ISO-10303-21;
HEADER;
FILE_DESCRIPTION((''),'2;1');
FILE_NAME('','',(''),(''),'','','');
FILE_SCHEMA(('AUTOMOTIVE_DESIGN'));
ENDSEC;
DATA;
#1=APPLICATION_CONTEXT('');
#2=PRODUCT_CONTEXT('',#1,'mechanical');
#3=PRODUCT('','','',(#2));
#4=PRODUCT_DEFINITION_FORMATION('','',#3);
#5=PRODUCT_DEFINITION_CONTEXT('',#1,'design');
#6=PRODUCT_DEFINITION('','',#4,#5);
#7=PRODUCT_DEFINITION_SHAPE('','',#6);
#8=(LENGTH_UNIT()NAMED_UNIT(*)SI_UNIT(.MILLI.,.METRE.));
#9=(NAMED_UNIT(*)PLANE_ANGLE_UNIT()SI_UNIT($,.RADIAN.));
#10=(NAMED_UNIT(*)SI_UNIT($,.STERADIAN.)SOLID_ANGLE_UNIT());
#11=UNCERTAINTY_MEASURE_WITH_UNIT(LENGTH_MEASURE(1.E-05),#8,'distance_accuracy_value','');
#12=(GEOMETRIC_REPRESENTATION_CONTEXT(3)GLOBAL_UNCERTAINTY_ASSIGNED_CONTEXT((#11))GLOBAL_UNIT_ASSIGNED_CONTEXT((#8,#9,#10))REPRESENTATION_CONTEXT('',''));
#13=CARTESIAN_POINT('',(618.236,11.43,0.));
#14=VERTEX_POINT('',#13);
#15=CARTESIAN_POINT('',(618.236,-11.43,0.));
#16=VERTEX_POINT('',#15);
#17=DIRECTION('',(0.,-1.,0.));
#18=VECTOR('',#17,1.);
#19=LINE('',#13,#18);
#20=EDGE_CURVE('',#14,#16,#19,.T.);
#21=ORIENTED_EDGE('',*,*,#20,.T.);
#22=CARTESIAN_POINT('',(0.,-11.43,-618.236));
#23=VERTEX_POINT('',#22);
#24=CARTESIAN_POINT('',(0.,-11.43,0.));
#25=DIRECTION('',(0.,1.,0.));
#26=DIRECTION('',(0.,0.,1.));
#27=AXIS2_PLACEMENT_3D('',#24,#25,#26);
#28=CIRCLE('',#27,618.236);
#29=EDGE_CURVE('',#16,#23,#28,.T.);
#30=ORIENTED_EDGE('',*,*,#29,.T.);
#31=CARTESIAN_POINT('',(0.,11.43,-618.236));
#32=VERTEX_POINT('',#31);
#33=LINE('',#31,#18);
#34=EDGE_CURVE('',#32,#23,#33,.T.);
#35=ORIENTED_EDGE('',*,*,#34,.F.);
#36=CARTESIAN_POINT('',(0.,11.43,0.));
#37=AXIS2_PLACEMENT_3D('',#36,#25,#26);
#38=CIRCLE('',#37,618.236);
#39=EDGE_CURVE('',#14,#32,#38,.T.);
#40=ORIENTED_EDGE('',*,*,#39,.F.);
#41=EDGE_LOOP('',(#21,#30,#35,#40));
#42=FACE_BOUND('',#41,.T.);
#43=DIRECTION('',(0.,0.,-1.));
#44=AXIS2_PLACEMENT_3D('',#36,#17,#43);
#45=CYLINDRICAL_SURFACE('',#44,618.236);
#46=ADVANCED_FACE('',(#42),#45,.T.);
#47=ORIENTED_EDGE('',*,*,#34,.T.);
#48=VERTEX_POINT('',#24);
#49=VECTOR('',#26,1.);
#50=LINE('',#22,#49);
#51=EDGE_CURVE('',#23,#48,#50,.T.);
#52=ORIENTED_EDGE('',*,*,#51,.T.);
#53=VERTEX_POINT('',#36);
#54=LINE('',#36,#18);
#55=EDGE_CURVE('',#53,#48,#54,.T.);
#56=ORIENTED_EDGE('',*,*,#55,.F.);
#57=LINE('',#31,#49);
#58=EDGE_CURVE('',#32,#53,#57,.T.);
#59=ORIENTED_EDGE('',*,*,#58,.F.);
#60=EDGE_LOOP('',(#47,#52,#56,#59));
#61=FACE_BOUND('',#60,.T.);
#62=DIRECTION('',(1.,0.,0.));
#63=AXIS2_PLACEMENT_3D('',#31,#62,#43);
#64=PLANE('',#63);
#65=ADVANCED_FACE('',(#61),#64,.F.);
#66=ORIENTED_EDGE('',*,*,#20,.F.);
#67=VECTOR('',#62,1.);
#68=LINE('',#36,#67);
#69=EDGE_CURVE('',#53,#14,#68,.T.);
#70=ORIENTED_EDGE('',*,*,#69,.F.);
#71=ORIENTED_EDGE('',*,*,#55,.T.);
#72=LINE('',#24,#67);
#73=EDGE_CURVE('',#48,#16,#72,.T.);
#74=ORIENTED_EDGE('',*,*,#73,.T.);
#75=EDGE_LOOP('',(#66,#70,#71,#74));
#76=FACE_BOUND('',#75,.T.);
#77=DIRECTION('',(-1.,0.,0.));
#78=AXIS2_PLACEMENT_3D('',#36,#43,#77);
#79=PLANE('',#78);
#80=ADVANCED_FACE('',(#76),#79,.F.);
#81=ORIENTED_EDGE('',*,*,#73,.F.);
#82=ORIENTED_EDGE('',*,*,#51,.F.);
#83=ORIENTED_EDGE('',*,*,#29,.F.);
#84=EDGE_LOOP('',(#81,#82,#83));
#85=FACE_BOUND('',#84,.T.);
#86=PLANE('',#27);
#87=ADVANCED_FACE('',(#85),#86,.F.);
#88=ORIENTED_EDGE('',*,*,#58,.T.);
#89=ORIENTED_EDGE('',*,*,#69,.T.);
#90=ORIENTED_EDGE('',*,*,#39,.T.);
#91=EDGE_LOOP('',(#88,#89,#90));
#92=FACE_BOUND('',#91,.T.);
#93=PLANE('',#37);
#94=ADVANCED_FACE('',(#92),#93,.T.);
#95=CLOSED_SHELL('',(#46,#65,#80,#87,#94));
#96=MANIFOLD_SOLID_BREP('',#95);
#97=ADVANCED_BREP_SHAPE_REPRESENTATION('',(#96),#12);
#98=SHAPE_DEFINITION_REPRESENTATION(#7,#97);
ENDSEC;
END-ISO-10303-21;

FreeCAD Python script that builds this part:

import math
import FreeCAD as App
import Part
import Sketcher
from FreeCAD import Vector
Q = App.Units.Quantity

doc = App.newDocument("Part")
params = doc.addObject("Spreadsheet::Sheet", "Params")
for row, (alias, value) in enumerate([
    ("sketch1_radius", "24.34 in"),
    ("pad1_length", "0.9 in"),
], start=1):
    params.set(f"A{row}", alias)
    params.set(f"B{row}", "=" + value)
    params.setAlias(f"B{row}", alias)

body = doc.addObject("PartDesign::Body", "Body")

# Sketch on XZ plane
sketch1 = body.newObject("Sketcher::SketchObject", "Sketch")
sketch1.AttachmentSupport = (doc.getObject("XZ_Plane"), [""])
sketch1.MapMode = "FlatFace"
sketch1.addGeometry([
    Part.LineSegment(Vector(0, -618, 0), Vector(0, 0, 0)),
    Part.LineSegment(Vector(0, 0, 0), Vector(618, 0, 0)),
    Part.ArcOfCircle(Part.Circle(Vector(0, 0, 0), Vector(0, 0, 1), 618), math.radians(-90), math.radians(0)),
], False)
sketch1.addConstraint([
    Sketcher.Constraint("Coincident", 0, 2, 1, 1),
    Sketcher.Constraint("Coincident", 1, 2, 2, 2),
    Sketcher.Constraint("Coincident", 2, 1, 0, 1),
    Sketcher.Constraint("Vertical", 0),
    Sketcher.Constraint("Horizontal", 1),
    Sketcher.Constraint("Coincident", 2, 3, -1, 1),
    Sketcher.Constraint("Coincident", 0, 2, -1, 1),
    Sketcher.Constraint("Radius", 2, Q("24.34 in")),
])
sketch1.setExpression("Constraints[7]", "Params.sketch1_radius")
pad1 = body.newObject("PartDesign::Pad", "Pad")
pad1.Profile = sketch1
pad1.setExpression("Length", "Params.pad1_length")
pad1.Midplane = True

doc.recompute()
